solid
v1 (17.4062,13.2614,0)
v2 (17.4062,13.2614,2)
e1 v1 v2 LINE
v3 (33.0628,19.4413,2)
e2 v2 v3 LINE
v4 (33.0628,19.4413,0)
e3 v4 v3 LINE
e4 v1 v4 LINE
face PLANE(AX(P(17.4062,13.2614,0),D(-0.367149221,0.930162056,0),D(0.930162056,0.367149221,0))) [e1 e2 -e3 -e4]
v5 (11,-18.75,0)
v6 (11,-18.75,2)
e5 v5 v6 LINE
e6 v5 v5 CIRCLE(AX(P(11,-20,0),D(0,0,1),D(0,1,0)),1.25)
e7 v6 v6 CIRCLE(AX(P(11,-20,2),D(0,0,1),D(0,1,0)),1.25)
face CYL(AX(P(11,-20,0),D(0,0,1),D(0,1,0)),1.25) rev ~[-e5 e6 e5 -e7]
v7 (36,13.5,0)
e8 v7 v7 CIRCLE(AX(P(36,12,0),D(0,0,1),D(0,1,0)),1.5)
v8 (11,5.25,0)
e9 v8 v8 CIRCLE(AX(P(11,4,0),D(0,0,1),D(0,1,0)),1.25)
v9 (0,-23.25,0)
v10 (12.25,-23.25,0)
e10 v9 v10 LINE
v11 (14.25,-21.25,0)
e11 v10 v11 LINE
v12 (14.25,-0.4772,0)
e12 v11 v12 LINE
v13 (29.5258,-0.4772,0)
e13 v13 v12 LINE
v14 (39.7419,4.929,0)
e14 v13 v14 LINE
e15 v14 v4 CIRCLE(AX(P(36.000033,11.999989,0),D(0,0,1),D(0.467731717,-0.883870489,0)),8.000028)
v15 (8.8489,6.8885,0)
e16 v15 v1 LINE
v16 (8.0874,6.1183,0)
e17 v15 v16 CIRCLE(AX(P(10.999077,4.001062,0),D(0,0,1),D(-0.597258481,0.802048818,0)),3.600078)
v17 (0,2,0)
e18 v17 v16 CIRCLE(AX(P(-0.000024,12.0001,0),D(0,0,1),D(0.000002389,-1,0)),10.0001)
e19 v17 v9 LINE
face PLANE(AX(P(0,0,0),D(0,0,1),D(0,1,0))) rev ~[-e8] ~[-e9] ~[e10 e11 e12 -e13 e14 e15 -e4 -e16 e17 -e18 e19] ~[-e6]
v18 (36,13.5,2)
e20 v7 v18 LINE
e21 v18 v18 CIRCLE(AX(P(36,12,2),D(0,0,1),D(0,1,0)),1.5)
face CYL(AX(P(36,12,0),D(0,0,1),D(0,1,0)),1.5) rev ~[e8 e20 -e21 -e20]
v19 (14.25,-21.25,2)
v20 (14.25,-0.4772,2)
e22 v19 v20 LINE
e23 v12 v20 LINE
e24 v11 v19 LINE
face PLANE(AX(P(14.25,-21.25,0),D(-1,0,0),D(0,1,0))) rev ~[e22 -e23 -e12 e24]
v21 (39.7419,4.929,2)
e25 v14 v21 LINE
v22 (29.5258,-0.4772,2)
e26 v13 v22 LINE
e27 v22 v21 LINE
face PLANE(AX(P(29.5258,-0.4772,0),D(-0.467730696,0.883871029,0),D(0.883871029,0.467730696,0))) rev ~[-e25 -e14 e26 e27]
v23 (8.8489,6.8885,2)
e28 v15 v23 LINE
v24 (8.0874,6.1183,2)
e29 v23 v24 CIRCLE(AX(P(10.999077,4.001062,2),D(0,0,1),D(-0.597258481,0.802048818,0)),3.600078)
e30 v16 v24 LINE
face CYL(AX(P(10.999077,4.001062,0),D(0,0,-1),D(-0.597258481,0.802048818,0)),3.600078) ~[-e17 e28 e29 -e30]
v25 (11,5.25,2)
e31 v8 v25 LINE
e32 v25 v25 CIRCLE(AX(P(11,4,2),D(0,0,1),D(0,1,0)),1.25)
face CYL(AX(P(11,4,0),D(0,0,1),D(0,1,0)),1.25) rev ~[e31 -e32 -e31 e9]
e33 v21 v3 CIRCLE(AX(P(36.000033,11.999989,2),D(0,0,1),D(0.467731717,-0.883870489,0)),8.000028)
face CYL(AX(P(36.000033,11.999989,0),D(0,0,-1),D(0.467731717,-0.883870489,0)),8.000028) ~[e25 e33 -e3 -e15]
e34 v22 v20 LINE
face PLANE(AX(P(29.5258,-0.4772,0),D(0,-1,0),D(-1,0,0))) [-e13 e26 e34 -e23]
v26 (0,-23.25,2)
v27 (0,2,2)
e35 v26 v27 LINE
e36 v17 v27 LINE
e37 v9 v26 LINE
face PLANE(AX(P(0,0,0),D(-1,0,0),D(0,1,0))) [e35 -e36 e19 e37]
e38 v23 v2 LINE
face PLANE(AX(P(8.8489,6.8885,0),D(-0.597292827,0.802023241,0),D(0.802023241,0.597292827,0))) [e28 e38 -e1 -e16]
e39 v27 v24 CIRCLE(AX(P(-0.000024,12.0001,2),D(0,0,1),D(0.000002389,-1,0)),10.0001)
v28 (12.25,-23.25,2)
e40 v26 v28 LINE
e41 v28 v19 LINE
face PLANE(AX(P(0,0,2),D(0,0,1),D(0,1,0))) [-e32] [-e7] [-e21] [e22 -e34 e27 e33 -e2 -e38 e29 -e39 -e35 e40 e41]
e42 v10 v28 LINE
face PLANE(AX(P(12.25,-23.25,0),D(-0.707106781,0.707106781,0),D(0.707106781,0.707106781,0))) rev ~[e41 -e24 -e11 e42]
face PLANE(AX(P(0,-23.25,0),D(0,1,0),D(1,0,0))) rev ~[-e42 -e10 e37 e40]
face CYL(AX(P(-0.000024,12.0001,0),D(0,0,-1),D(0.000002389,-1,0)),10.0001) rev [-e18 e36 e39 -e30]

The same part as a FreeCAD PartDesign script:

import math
import FreeCAD as App
import Part
import Sketcher
from FreeCAD import Vector
Q = App.Units.Quantity

doc = App.newDocument("Part")
params = doc.addObject("Spreadsheet::Sheet", "Params")
for row, (alias, value) in enumerate([
    ("sketch1_radius", "10 mm"),
    ("sketch1_radius2", "8 mm"),
    ("sketch1_radius3", "3.6 mm"),
    ("sketch1_width", "12.25 mm"),
    ("sketch1_height", "25.25 mm"),
    ("pad1_length", "2 mm"),
    ("sketch2_diameter", "3 mm"),
    ("hole_diameter", "3 mm"),
    ("sketch3_diameter", "2.5 mm"),
    ("hole2_diameter", "2.5 mm"),
], start=1):
    params.set(f"A{row}", alias)
    params.set(f"B{row}", "=" + value)
    params.setAlias(f"B{row}", alias)

body = doc.addObject("PartDesign::Body", "Body")

sketch1 = body.newObject("Sketcher::SketchObject", "Sketch")
sketch1.AttachmentSupport = (doc.getObject("XY_Plane"), [""])
sketch1.MapMode = "FlatFace"
sketch1.addGeometry([
    Part.ArcOfCircle(Part.Circle(Vector(0, 12, 0), Vector(0, 0, 1), 10), math.radians(-90), math.radians(-36)),
    Part.LineSegment(Vector(0, 2, 0), Vector(0, -23.2, 0)),
    Part.LineSegment(Vector(0, -23.2, 0), Vector(12.2, -23.2, 0)),
    Part.LineSegment(Vector(12.2, -23.2, 0), Vector(14.2, -21.2, 0)),
    Part.LineSegment(Vector(14.2, -21.2, 0), Vector(14.2, -0.5, 0)),
    Part.LineSegment(Vector(14.2, -0.5, 0), Vector(29.5, -0.5, 0)),
    Part.LineSegment(Vector(29.5, -0.5, 0), Vector(39.7, 4.9, 0)),
    Part.ArcOfCircle(Part.Circle(Vector(36, 12, 0), Vector(0, 0, 1), 8), math.radians(-62), math.radians(112)),
    Part.LineSegment(Vector(33.1, 19.4, 0), Vector(17.4, 13.3, 0)),
    Part.LineSegment(Vector(17.4, 13.3, 0), Vector(8.8, 6.9, 0)),
    Part.ArcOfCircle(Part.Circle(Vector(11, 4, 0), Vector(0, 0, 1), 3.6), math.radians(126.67), math.radians(143.98)),
], False)
sketch1.addConstraint([
    Sketcher.Constraint("Coincident", 0, 1, 1, 1),
    Sketcher.Constraint("Coincident", 1, 2, 2, 1),
    Sketcher.Constraint("Coincident", 2, 2, 3, 1),
    Sketcher.Constraint("Coincident", 3, 2, 4, 1),
    Sketcher.Constraint("Coincident", 4, 2, 5, 1),
    Sketcher.Constraint("Coincident", 5, 2, 6, 1),
    Sketcher.Constraint("Tangent", 6, 2, 7, 1),
    Sketcher.Constraint("Tangent", 7, 2, 8, 1),
    Sketcher.Constraint("Coincident", 8, 2, 9, 1),
    Sketcher.Constraint("Tangent", 9, 2, 10, 1),
    Sketcher.Constraint("Tangent", 10, 2, 0, 2),
    Sketcher.Constraint("Vertical", 1),
    Sketcher.Constraint("Horizontal", 2),
    Sketcher.Constraint("Vertical", 4),
    Sketcher.Constraint("Horizontal", 5),
    Sketcher.Constraint("PointOnObject", 0, 3, -2),
    Sketcher.Constraint("PointOnObject", 0, 1, -2),
    Sketcher.Constraint("Horizontal", 0, 3, 7, 3),
    Sketcher.Constraint("Radius", 0, Q("10 mm")),
    Sketcher.Constraint("Radius", 7, Q("8 mm")),
    Sketcher.Constraint("DistanceX", -1, 1, 7, 3, Q("36 mm")),
    Sketcher.Constraint("Radius", 10, Q("3.6 mm")),
    Sketcher.Constraint("Angle", 3, Q("45 deg")),
    Sketcher.Constraint("DistanceY", -1, 1, 0, 3, Q("12 mm")),
    Sketcher.Constraint("DistanceX", 2, 2, 3, 2, Q("2 mm")),
    Sketcher.Constraint("DistanceX", 2, 1, 2, 2, Q("12.25 mm")),
    Sketcher.Constraint("DistanceY", 1, 2, 1, 1, Q("25.25 mm")),
    Sketcher.Constraint("Angle", 8, Q("-158.46 deg")),
    Sketcher.Constraint("DistanceY", 8, 2, 7, 2, Q("6.18 mm")),
    Sketcher.Constraint("DistanceX", 5, 1, 5, 2, Q("15.2758 mm")),
    Sketcher.Constraint("DistanceY", 4, 1, 4, 2, Q("20.7728 mm")),
    Sketcher.Constraint("DistanceX", -1, 1, 10, 3, Q("10.999 mm")),
])
sketch1.setExpression("Constraints[18]", "Params.sketch1_radius")
sketch1.setExpression("Constraints[19]", "Params.sketch1_radius2")
sketch1.setExpression("Constraints[21]", "Params.sketch1_radius3")
sketch1.setExpression("Constraints[25]", "Params.sketch1_width")
sketch1.setExpression("Constraints[26]", "Params.sketch1_height")
pad1 = body.newObject("PartDesign::Pad", "Pad")
pad1.Profile = sketch1
pad1.setExpression("Length", "Params.pad1_length")

sketch2 = body.newObject("Sketcher::SketchObject", "Sketch001")
sketch2.AttachmentSupport = (doc.getObject("XY_Plane"), [""])
sketch2.MapMode = "FlatFace"
sketch2.addGeometry(Part.Circle(Vector(36, 12, 0), Vector(0, 0, 1), 1.5), False)
sketch2.addConstraint([
    Sketcher.Constraint("Diameter", 0, Q("3 mm")),
    Sketcher.Constraint("DistanceX", -1, 1, 0, 3, Q("36 mm")),
    Sketcher.Constraint("DistanceY", -1, 1, 0, 3, Q("12 mm")),
])
sketch2.setExpression("Constraints[0]", "Params.sketch2_diameter")
doc.recompute()
hole = body.newObject("PartDesign::Hole", "Hole")
hole.Profile = sketch2
hole.ThreadType = "None"
hole.setExpression("Diameter", "Params.hole_diameter")
hole.DepthType = "ThroughAll"
hole.Reversed = True

sketch3 = body.newObject("Sketcher::SketchObject", "Sketch002")
sketch3.AttachmentSupport = (doc.getObject("XY_Plane"), [""])
sketch3.MapMode = "FlatFace"
sketch3.addGeometry([
    Part.Circle(Vector(11, 4, 0), Vector(0, 0, 1), 1.2),
    Part.Circle(Vector(11, -20, 0), Vector(0, 0, 1), 1.2),
], False)
sketch3.addConstraint([
    Sketcher.Constraint("Equal", 0, 1),
    Sketcher.Constraint("Vertical", 0, 3, 1, 3),
    Sketcher.Constraint("Diameter", 0, Q("2.5 mm")),
    Sketcher.Constraint("DistanceX", -1, 1, 0, 3, Q("11 mm")),
    Sketcher.Constraint("DistanceY", -1, 1, 0, 3, Q("4 mm")),
    Sketcher.Constraint("DistanceY", 1, 3, -1, 1, Q("20 mm")),
])
sketch3.setExpression("Constraints[2]", "Params.sketch3_diameter")
doc.recompute()
hole2 = body.newObject("PartDesign::Hole", "Hole001")
hole2.Profile = sketch3
hole2.ThreadType = "None"
hole2.setExpression("Diameter", "Params.hole2_diameter")
hole2.DepthType = "ThroughAll"
hole2.Reversed = True

doc.recompute()
